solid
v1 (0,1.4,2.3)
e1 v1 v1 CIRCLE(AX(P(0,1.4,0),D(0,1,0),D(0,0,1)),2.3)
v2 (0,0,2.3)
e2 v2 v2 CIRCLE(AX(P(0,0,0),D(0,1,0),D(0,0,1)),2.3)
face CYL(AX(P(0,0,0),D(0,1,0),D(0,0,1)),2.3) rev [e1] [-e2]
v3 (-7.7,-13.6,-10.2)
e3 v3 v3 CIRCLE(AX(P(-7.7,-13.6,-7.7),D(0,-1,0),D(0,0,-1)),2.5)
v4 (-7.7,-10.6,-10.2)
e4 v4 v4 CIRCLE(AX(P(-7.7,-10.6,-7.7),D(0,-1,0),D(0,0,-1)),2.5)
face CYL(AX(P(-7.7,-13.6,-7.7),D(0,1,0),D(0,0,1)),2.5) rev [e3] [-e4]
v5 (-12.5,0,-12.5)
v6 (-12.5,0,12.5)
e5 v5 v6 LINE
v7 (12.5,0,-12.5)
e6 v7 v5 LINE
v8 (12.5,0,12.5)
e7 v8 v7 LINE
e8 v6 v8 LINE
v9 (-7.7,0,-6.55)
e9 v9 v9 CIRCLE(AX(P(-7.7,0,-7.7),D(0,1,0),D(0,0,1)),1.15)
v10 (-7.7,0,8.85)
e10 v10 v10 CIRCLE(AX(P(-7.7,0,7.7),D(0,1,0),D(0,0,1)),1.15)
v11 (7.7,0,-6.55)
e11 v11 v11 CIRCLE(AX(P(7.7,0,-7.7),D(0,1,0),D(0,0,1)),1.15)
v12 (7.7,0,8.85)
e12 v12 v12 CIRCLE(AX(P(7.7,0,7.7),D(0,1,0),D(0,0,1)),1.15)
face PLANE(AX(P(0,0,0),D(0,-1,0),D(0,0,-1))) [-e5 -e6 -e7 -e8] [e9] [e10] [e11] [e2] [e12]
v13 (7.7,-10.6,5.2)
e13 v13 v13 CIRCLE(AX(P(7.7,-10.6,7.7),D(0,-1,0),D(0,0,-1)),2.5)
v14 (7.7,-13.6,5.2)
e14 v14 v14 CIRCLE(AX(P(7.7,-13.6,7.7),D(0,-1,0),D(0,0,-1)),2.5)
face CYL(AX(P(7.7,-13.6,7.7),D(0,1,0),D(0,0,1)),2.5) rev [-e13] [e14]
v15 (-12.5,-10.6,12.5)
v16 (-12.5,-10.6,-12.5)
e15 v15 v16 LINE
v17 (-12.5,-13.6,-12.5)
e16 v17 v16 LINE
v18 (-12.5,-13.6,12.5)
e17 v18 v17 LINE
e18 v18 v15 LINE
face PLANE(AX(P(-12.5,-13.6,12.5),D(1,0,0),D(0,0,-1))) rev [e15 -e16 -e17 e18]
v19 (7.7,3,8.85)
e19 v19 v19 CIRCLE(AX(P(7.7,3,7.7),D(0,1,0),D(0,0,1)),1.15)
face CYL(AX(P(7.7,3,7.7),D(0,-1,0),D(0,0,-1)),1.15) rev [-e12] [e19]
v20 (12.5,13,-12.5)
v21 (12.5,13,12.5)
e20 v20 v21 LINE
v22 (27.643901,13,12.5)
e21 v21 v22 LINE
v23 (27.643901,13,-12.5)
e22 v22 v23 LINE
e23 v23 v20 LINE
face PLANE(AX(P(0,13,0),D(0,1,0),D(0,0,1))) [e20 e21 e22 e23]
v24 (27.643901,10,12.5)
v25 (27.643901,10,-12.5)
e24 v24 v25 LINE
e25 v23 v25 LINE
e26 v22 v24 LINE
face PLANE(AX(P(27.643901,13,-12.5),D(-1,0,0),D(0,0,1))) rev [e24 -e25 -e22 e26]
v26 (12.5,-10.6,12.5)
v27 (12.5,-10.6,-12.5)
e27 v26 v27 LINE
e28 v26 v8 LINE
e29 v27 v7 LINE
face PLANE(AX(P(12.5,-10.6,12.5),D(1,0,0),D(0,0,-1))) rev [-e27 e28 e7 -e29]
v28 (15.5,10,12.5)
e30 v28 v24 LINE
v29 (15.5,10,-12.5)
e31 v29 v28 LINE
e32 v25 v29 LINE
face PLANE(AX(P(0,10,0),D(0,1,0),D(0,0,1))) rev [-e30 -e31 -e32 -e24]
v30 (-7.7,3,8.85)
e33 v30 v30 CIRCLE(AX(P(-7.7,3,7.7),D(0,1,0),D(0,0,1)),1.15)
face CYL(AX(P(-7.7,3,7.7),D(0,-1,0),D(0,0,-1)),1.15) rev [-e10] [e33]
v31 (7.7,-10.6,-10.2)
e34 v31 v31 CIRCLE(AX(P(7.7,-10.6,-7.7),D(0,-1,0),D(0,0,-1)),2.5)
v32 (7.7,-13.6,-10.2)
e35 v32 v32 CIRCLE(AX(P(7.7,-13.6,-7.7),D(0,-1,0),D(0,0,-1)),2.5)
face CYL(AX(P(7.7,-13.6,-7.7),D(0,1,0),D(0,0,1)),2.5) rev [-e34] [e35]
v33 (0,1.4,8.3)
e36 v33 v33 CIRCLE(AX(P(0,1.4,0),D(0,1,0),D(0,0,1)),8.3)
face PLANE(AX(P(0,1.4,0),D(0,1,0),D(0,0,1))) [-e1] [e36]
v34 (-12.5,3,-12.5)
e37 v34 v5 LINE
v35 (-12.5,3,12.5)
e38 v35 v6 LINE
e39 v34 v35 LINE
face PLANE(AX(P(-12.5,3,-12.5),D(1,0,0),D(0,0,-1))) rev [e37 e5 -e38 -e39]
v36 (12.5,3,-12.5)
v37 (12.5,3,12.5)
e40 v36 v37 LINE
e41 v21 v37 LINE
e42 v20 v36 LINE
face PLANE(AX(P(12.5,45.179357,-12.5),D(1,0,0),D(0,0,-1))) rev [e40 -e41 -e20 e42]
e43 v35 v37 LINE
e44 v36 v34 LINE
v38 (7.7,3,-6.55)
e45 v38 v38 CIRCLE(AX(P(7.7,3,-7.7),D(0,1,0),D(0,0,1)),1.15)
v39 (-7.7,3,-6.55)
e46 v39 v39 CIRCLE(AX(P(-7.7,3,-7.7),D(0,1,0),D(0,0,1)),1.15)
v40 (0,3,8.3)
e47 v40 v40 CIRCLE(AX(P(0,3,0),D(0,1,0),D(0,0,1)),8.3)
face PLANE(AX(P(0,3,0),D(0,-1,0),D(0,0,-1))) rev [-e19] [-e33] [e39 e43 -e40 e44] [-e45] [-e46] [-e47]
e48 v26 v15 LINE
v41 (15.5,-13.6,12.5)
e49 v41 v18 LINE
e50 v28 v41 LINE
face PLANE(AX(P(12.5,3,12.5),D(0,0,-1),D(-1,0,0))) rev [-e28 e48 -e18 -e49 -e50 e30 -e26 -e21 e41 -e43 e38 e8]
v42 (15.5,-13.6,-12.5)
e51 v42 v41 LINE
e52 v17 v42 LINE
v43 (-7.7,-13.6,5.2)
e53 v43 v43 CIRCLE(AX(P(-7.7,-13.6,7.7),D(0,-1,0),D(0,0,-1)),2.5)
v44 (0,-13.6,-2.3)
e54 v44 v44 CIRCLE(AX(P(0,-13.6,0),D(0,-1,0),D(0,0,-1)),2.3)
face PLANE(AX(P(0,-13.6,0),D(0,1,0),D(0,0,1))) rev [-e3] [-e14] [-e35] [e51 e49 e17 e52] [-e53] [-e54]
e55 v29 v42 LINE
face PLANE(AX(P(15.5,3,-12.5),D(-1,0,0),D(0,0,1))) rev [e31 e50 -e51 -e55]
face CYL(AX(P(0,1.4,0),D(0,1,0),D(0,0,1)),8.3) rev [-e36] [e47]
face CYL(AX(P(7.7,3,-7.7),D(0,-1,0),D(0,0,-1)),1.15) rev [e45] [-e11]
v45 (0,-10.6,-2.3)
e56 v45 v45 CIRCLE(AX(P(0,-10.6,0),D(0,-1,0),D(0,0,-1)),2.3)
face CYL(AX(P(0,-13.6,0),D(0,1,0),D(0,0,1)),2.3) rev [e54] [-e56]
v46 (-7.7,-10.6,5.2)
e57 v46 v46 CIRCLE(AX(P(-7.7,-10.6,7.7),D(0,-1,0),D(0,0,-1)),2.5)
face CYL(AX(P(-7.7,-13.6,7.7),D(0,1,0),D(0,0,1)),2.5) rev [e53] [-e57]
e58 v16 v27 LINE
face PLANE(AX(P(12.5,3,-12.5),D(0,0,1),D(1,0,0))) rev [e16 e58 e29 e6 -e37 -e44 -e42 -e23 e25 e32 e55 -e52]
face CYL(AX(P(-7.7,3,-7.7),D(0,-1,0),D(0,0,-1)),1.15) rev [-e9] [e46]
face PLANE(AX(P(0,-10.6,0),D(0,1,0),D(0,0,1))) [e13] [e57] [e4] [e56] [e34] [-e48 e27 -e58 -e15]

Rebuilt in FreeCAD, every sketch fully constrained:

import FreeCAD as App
import Part
import Sketcher

V = App.Vector
Q = App.Units.Quantity

doc = App.newDocument("Part")
body = doc.addObject("PartDesign::Body", "Body")

sketch1 = doc.addObject("Sketcher::SketchObject", "Sketch")
body.addObject(sketch1)
sketch1.AttachmentSupport = (doc.XZ_Plane, [""])
sketch1.MapMode = "FlatFace"
sketch1.addGeometry([
    Part.LineSegment(V(-12.5, -12.5, 0), V(-12.5, 12.5, 0)),
    Part.LineSegment(V(-12.5, 12.5, 0), V(15.5, 12.5, 0)),
    Part.LineSegment(V(15.5, 12.5, 0), V(15.5, -12.5, 0)),
    Part.LineSegment(V(15.5, -12.5, 0), V(-12.5, -12.5, 0)),
    Part.Circle(V(-7.7, 7.7, 0), V(0, 0, 1), 1.1),
    Part.Circle(V(7.7, 7.7, 0), V(0, 0, 1), 1.1),
    Part.Circle(V(-7.7, -7.7, 0), V(0, 0, 1), 1.1),
    Part.Circle(V(7.7, -7.7, 0), V(0, 0, 1), 1.1),
], False)
sketch1.addConstraint([
    Sketcher.Constraint("Coincident", 0, 2, 1, 1),
    Sketcher.Constraint("Coincident", 1, 2, 2, 1),
    Sketcher.Constraint("Coincident", 2, 2, 3, 1),
    Sketcher.Constraint("Coincident", 3, 2, 0, 1),
    Sketcher.Constraint("Vertical", 0),
    Sketcher.Constraint("Horizontal", 1),
    Sketcher.Constraint("Vertical", 2),
    Sketcher.Constraint("Horizontal", 3),
    Sketcher.Constraint("Equal", 4, 5),
    Sketcher.Constraint("Equal", 5, 6),
    Sketcher.Constraint("Equal", 6, 7),
    Sketcher.Constraint("Symmetric", 5, 3, 6, 3, -1, 1),
    Sketcher.Constraint("Symmetric", 4, 3, 7, 3, -1, 1),
    Sketcher.Constraint("Symmetric", 4, 3, 5, 3, -2),
    Sketcher.Constraint("Diameter", 4, Q("2.3 mm")),
    Sketcher.Constraint("DistanceX", 1, 1, 1, 2, Q("28 mm")),
    Sketcher.Constraint("DistanceY", 0, 1, 0, 2, Q("25 mm")),
    Sketcher.Constraint("DistanceX", 4, 3, -1, 1, Q("7.7 mm")),
    Sketcher.Constraint("DistanceY", -1, 1, 4, 3, Q("7.7 mm")),
    Sketcher.Constraint("DistanceX", 0, 2, -1, 1, Q("12.5 mm")),
    Sketcher.Constraint("DistanceY", -1, 1, 0, 2, Q("12.5 mm")),
])
pad1 = doc.addObject("PartDesign::Pad", "Pad")
body.addObject(pad1)
pad1.Profile = sketch1
pad1.Length = 3
pad1.Reversed = True

sketch2 = doc.addObject("Sketcher::SketchObject", "Sketch001")
body.addObject(sketch2)
sketch2.AttachmentSupport = (doc.XZ_Plane, [""])
sketch2.MapMode = "FlatFace"
sketch2.AttachmentOffset = App.Placement(V(0, 0, -3), App.Rotation())
sketch2.addGeometry([
    Part.LineSegment(V(12.5, -12.5, 0), V(12.5, 12.5, 0)),
    Part.LineSegment(V(12.5, 12.5, 0), V(15.5, 12.5, 0)),
    Part.LineSegment(V(15.5, 12.5, 0), V(15.5, -12.5, 0)),
    Part.LineSegment(V(15.5, -12.5, 0), V(12.5, -12.5, 0)),
], False)
sketch2.addConstraint([
    Sketcher.Constraint("Coincident", 0, 2, 1, 1),
    Sketcher.Constraint("Coincident", 1, 2, 2, 1),
    Sketcher.Constraint("Coincident", 2, 2, 3, 1),
    Sketcher.Constraint("Coincident", 3, 2, 0, 1),
    Sketcher.Constraint("Vertical", 0),
    Sketcher.Constraint("Horizontal", 1),
    Sketcher.Constraint("Vertical", 2),
    Sketcher.Constraint("Horizontal", 3),
    Sketcher.Constraint("DistanceX", 1, 1, 1, 2, Q("3 mm")),
    Sketcher.Constraint("DistanceY", 0, 1, 0, 2, Q("25 mm")),
    Sketcher.Constraint("DistanceX", -1, 1, 0, 2, Q("12.5 mm")),
    Sketcher.Constraint("DistanceY", -1, 1, 0, 2, Q("12.5 mm")),
])
pad2 = doc.addObject("PartDesign::Pad", "Pad001")
body.addObject(pad2)
pad2.Profile = sketch2
pad2.Length = 7
pad2.Reversed = True

sketch3 = doc.addObject("Sketcher::SketchObject", "Sketch002")
body.addObject(sketch3)
sketch3.AttachmentSupport = (doc.XZ_Plane, [""])
sketch3.MapMode = "FlatFace"
sketch3.AttachmentOffset = App.Placement(V(0, 0, -10), App.Rotation())
sketch3.addGeometry([
    Part.LineSegment(V(12, -12, 0), V(12, 12, 0)),
    Part.LineSegment(V(12, 12, 0), V(28, 12, 0)),
    Part.LineSegment(V(28, 12, 0), V(28, -12, 0)),
    Part.LineSegment(V(28, -12, 0), V(12, -12, 0)),
], False)
sketch3.addConstraint([
    Sketcher.Constraint("Coincident", 0, 2, 1, 1),
    Sketcher.Constraint("Coincident", 1, 2, 2, 1),
    Sketcher.Constraint("Coincident", 2, 2, 3, 1),
    Sketcher.Constraint("Coincident", 3, 2, 0, 1),
    Sketcher.Constraint("Vertical", 0),
    Sketcher.Constraint("Horizontal", 1),
    Sketcher.Constraint("Vertical", 2),
    Sketcher.Constraint("Horizontal", 3),
    Sketcher.Constraint("DistanceY", 0, 1, 0, 2, Q("25 mm")),
    Sketcher.Constraint("DistanceX", -1, 1, 0, 2, Q("12.5 mm")),
    Sketcher.Constraint("DistanceY", -1, 1, 0, 2, Q("12.5 mm")),
    Sketcher.Constraint("DistanceX", 1, 1, 1, 2, Q("15.143901 mm")),
])
pad3 = doc.addObject("PartDesign::Pad", "Pad002")
body.addObject(pad3)
pad3.Profile = sketch3
pad3.Length = 3
pad3.Reversed = True

sketch4 = doc.addObject("Sketcher::SketchObject", "Sketch003")
body.addObject(sketch4)
sketch4.AttachmentSupport = (doc.XZ_Plane, [""])
sketch4.MapMode = "FlatFace"
sketch4.AttachmentOffset = App.Placement(V(0, 0, -3), App.Rotation())
sketch4.addGeometry(Part.Circle(V(0, 0, 0), V(0, 0, 1), 8), False)
sketch4.addConstraint([
    Sketcher.Constraint("Coincident", 0, 3, -1, 1),
    Sketcher.Constraint("Diameter", 0, Q("16.6 mm")),
])
pocket1 = doc.addObject("PartDesign::Pocket", "Pocket")
body.addObject(pocket1)
pocket1.Profile = sketch4
pocket1.Length = 1.6
pocket1.Reversed = True

sketch5 = doc.addObject("Sketcher::SketchObject", "Sketch004")
body.addObject(sketch5)
sketch5.AttachmentSupport = (doc.XZ_Plane, [""])
sketch5.MapMode = "FlatFace"
sketch5.AttachmentOffset = App.Placement(V(0, 0, -1.4), App.Rotation())
sketch5.addGeometry(Part.Circle(V(0, 0, 0), V(0, 0, 1), 2.3), False)
sketch5.addConstraint([
    Sketcher.Constraint("Coincident", 0, 3, -1, 1),
    Sketcher.Constraint("Diameter", 0, Q("4.6 mm")),
])
pocket2 = doc.addObject("PartDesign::Pocket", "Pocket001")
body.addObject(pocket2)
pocket2.Profile = sketch5
pocket2.Type = "ThroughAll"
pocket2.Reversed = True

sketch6 = doc.addObject("Sketcher::SketchObject", "Sketch005")
body.addObject(sketch6)
sketch6.AttachmentSupport = (doc.XZ_Plane, [""])
sketch6.MapMode = "FlatFace"
sketch6.addGeometry([
    Part.LineSegment(V(12.5, 12.5, 0), V(12.5, -12.5, 0)),
    Part.LineSegment(V(12.5, -12.5, 0), V(15.5, -12.5, 0)),
    Part.LineSegment(V(15.5, -12.5, 0), V(15.5, 12.5, 0)),
    Part.LineSegment(V(15.5, 12.5, 0), V(12.5, 12.5, 0)),
], False)
sketch6.addConstraint([
    Sketcher.Constraint("Coincident", 0, 2, 1, 1),
    Sketcher.Constraint("Coincident", 1, 2, 2, 1),
    Sketcher.Constraint("Coincident", 2, 2, 3, 1),
    Sketcher.Constraint("Coincident", 3, 2, 0, 1),
    Sketcher.Constraint("Vertical", 0),
    Sketcher.Constraint("Horizontal", 1),
    Sketcher.Constraint("Vertical", 2),
    Sketcher.Constraint("Horizontal", 3),
    Sketcher.Constraint("DistanceX", 1, 1, 1, 2, Q("3 mm")),
    Sketcher.Constraint("DistanceY", 0, 2, 0, 1, Q("25 mm")),
    Sketcher.Constraint("DistanceX", -1, 1, 0, 2, Q("12.5 mm")),
    Sketcher.Constraint("DistanceY", 0, 2, -1, 1, Q("12.5 mm")),
])
pad4 = doc.addObject("PartDesign::Pad", "Pad003")
body.addObject(pad4)
pad4.Profile = sketch6
pad4.Length = 10.6

sketch7 = doc.addObject("Sketcher::SketchObject", "Sketch006")
body.addObject(sketch7)
sketch7.AttachmentSupport = (doc.XZ_Plane, [""])
sketch7.MapMode = "FlatFace"
sketch7.AttachmentOffset = App.Placement(V(0, 0, 10.6), App.Rotation())
sketch7.addGeometry([
    Part.LineSegment(V(-12.5, 12.5, 0), V(-12.5, -12.5, 0)),
    Part.LineSegment(V(-12.5, -12.5, 0), V(15.5, -12.5, 0)),
    Part.LineSegment(V(15.5, -12.5, 0), V(15.5, 12.5, 0)),
    Part.LineSegment(V(15.5, 12.5, 0), V(-12.5, 12.5, 0)),
    Part.Circle(V(-7.7, -7.7, 0), V(0, 0, 1), 2.5),
    Part.Circle(V(7.7, -7.7, 0), V(0, 0, 1), 2.5),
    Part.Circle(V(-7.7, 7.7, 0), V(0, 0, 1), 2.5),
    Part.Circle(V(0, 0, 0), V(0, 0, 1), 2.3),
    Part.Circle(V(7.7, 7.7, 0), V(0, 0, 1), 2.5),
], False)
sketch7.addConstraint([
    Sketcher.Constraint("Coincident", 0, 2, 1, 1),
    Sketcher.Constraint("Coincident", 1, 2, 2, 1),
    Sketcher.Constraint("Coincident", 2, 2, 3, 1),
    Sketcher.Constraint("Coincident", 3, 2, 0, 1),
    Sketcher.Constraint("Vertical", 0),
    Sketcher.Constraint("Horizontal", 1),
    Sketcher.Constraint("Vertical", 2),
    Sketcher.Constraint("Horizontal", 3),
    Sketcher.Constraint("Coincident", 7, 3, -1, 1),
    Sketcher.Constraint("Equal", 4, 5),
    Sketcher.Constraint("Equal", 5, 6),
    Sketcher.Constraint("Equal", 6, 8),
    Sketcher.Constraint("Symmetric", 5, 3, 6, 3, -1, 1),
    Sketcher.Constraint("Symmetric", 4, 3, 8, 3, -1, 1),
    Sketcher.Constraint("Symmetric", 4, 3, 5, 3, -2),
    Sketcher.Constraint("Diameter", 4, Q("5 mm")),
    Sketcher.Constraint("Diameter", 7, Q("4.6 mm")),
    Sketcher.Constraint("DistanceX", 1, 1, 1, 2, Q("28 mm")),
    Sketcher.Constraint("DistanceY", 0, 2, 0, 1, Q("25 mm")),
    Sketcher.Constraint("DistanceX", 4, 3, -1, 1, Q("7.7 mm")),
    Sketcher.Constraint("DistanceY", 4, 3, -1, 1, Q("7.7 mm")),
    Sketcher.Constraint("DistanceX", 0, 2, -1, 1, Q("12.5 mm")),
    Sketcher.Constraint("DistanceY", 0, 2, -1, 1, Q("12.5 mm")),
])
pad5 = doc.addObject("PartDesign::Pad", "Pad004")
body.addObject(pad5)
pad5.Profile = sketch7
pad5.Length = 3

doc.recompute()
